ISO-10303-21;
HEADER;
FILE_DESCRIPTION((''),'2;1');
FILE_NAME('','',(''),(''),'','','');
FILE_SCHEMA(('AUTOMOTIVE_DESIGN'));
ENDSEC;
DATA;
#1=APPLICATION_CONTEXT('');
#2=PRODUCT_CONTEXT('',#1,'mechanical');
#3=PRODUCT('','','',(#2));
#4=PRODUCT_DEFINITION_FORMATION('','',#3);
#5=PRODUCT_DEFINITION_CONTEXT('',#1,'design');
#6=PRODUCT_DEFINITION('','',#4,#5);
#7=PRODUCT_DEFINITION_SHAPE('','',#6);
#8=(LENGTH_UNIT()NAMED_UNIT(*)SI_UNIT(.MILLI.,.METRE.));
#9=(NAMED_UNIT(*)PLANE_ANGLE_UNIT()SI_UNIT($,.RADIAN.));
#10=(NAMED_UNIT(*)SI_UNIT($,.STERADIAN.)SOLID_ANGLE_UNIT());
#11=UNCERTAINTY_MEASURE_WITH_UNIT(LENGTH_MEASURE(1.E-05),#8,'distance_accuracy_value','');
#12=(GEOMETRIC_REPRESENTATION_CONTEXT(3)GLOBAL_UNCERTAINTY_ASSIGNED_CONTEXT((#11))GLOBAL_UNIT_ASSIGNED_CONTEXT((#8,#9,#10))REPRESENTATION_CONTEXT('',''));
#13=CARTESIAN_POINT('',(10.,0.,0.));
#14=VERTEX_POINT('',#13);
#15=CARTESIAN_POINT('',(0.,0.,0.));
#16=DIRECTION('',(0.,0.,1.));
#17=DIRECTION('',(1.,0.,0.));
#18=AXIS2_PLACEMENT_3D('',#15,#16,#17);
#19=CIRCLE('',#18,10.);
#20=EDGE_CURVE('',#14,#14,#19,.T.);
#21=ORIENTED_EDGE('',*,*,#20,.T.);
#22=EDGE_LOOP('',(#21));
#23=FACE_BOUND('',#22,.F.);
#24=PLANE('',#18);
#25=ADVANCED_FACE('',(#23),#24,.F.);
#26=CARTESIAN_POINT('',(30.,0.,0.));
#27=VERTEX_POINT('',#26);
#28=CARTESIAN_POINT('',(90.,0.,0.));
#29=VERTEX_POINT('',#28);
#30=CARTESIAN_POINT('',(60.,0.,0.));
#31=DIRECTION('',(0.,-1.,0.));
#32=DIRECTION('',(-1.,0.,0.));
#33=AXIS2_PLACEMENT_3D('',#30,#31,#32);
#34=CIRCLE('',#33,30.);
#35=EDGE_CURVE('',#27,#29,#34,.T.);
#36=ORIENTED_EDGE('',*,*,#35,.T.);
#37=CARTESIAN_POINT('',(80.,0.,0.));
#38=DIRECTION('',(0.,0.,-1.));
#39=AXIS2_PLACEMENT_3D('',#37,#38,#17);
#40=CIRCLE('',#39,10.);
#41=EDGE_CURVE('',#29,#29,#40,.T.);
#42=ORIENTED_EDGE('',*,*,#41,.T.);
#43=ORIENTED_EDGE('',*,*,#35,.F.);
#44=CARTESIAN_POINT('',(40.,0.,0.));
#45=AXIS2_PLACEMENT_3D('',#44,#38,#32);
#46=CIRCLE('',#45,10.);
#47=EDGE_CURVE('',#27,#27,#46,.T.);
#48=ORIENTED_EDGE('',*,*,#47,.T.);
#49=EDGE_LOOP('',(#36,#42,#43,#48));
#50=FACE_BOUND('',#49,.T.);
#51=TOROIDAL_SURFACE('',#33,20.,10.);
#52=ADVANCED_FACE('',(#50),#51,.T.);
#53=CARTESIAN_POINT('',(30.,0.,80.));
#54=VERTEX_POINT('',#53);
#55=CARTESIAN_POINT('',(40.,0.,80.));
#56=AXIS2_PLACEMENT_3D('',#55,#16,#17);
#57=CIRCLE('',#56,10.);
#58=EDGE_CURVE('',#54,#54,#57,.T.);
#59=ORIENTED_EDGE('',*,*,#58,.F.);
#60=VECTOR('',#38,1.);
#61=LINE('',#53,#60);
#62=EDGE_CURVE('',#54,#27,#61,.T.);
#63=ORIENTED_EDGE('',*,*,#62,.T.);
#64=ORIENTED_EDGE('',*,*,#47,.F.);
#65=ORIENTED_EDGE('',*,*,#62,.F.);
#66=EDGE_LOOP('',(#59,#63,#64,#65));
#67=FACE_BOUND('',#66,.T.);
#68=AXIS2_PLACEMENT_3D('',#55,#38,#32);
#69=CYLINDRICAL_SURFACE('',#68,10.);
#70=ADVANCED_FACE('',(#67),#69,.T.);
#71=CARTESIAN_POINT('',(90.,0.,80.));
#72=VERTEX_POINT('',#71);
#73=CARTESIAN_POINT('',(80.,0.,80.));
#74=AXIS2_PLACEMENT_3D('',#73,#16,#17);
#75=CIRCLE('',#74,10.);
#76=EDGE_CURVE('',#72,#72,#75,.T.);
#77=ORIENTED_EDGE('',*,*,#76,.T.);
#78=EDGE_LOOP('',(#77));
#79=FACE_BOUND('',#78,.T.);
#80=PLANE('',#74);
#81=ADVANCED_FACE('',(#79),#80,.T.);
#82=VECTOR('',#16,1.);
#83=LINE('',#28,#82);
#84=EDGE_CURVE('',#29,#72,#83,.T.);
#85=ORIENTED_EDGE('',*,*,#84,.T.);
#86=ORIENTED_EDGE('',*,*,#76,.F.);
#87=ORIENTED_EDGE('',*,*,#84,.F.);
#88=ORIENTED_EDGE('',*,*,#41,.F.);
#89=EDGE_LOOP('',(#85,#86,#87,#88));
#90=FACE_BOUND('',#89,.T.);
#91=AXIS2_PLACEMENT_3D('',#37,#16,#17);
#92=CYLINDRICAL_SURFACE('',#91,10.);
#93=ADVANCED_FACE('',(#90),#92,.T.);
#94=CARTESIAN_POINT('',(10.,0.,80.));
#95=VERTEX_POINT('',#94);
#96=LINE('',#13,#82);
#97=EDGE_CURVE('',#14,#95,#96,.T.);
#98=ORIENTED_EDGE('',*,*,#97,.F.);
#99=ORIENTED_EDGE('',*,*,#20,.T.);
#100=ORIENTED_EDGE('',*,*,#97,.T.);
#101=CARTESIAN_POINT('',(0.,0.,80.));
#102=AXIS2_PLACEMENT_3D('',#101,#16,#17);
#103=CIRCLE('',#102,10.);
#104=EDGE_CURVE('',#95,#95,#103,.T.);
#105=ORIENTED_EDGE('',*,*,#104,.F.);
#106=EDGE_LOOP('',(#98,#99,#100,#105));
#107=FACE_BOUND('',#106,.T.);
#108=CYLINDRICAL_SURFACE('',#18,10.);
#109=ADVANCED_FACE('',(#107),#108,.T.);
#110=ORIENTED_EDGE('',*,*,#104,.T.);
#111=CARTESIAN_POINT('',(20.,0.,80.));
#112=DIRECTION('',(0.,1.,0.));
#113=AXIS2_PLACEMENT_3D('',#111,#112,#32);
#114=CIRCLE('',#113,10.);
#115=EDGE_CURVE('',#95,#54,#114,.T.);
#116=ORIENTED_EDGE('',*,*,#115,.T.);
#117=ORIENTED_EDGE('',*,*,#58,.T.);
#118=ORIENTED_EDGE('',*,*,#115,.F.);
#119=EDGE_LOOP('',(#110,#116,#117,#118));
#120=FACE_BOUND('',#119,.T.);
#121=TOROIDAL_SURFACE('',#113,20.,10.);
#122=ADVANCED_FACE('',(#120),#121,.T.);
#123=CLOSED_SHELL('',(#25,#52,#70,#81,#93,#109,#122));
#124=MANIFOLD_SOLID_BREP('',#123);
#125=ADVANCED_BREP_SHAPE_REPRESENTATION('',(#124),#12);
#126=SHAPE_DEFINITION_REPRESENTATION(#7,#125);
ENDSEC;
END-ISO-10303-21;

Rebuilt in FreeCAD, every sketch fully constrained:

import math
import FreeCAD as App
import Part
import Sketcher

V = App.Vector
Q = App.Units.Quantity

doc = App.newDocument("Part")
params = doc.addObject("Spreadsheet::Sheet", "Params")
for row, (alias, value) in enumerate([
    ("sketch1_diameter", "20 mm"),
    ("sketch2_radius", "20 mm"),
    ("sketch2_height", "80 mm"),
], start=1):
    params.set(f"A{row}", alias)
    params.set(f"B{row}", "=" + value)
    params.setAlias(f"B{row}", alias)

body = doc.addObject("PartDesign::Body", "Body")

# Sketch on XY plane
sketch1 = body.newObject("Sketcher::SketchObject", "Sketch")
sketch1.AttachmentSupport = (doc.getObject("XY_Plane"), [""])
sketch1.MapMode = "FlatFace"
sketch1.addGeometry(Part.Circle(V(0, 0, 0), V(0, 0, 1), 10), False)
sketch1.addConstraint([
    Sketcher.Constraint("Coincident", 0, 3, -1, 1),
    Sketcher.Constraint("Diameter", 0, Q("20 mm")),
])
sketch1.setExpression("Constraints[1]", "Params.sketch1_diameter")

# Sketch on XZ plane
sketch2 = body.newObject("Sketcher::SketchObject", "Sketch001")
sketch2.AttachmentSupport = (doc.getObject("XZ_Plane"), [""])
sketch2.MapMode = "FlatFace"
sketch2.addGeometry([
    Part.LineSegment(V(0, 0, 0), V(0, 80, 0)),  # 0
    Part.ArcOfCircle(Part.Circle(V(20, 80, 0), V(0, 0, 1), 20), math.radians(0), math.radians(180)),  # 1
    Part.LineSegment(V(40, 80, 0), V(40, 0, 0)),  # 2
    Part.ArcOfCircle(Part.Circle(V(60, 0, 0), V(0, 0, 1), 20), math.radians(180), math.radians(360)),  # 3
    Part.LineSegment(V(80, 0, 0), V(80, 80, 0)),  # 4
], False)
sketch2.addConstraint([
    Sketcher.Constraint("Tangent", 0, 2, 1, 2),
    Sketcher.Constraint("Tangent", 1, 1, 2, 1),
    Sketcher.Constraint("Tangent", 2, 2, 3, 1),
    Sketcher.Constraint("Tangent", 3, 2, 4, 1),
    Sketcher.Constraint("Vertical", 0),
    Sketcher.Constraint("Vertical", 2),
    Sketcher.Constraint("Vertical", 4),
    Sketcher.Constraint("Coincident", 0, 1, -1, 1),
    Sketcher.Constraint("Equal", 1, 3),
    Sketcher.Constraint("PointOnObject", 3, 3, -1),
    Sketcher.Constraint("Horizontal", 1, 1, 4, 2),
    Sketcher.Constraint("Radius", 1, Q("20 mm")),
    Sketcher.Constraint("DistanceY", 0, 1, 0, 2, Q("80 mm")),
])
sketch2.setExpression("Constraints[11]", "Params.sketch2_radius")
sketch2.setExpression("Constraints[12]", "Params.sketch2_height")
doc.recompute()

additivepipe = body.newObject("PartDesign::AdditivePipe", "AdditivePipe")
additivepipe.Profile = sketch1
additivepipe.Spine = (sketch2, ["Edge1", "Edge2", "Edge3", "Edge4", "Edge5"])

doc.recompute()
